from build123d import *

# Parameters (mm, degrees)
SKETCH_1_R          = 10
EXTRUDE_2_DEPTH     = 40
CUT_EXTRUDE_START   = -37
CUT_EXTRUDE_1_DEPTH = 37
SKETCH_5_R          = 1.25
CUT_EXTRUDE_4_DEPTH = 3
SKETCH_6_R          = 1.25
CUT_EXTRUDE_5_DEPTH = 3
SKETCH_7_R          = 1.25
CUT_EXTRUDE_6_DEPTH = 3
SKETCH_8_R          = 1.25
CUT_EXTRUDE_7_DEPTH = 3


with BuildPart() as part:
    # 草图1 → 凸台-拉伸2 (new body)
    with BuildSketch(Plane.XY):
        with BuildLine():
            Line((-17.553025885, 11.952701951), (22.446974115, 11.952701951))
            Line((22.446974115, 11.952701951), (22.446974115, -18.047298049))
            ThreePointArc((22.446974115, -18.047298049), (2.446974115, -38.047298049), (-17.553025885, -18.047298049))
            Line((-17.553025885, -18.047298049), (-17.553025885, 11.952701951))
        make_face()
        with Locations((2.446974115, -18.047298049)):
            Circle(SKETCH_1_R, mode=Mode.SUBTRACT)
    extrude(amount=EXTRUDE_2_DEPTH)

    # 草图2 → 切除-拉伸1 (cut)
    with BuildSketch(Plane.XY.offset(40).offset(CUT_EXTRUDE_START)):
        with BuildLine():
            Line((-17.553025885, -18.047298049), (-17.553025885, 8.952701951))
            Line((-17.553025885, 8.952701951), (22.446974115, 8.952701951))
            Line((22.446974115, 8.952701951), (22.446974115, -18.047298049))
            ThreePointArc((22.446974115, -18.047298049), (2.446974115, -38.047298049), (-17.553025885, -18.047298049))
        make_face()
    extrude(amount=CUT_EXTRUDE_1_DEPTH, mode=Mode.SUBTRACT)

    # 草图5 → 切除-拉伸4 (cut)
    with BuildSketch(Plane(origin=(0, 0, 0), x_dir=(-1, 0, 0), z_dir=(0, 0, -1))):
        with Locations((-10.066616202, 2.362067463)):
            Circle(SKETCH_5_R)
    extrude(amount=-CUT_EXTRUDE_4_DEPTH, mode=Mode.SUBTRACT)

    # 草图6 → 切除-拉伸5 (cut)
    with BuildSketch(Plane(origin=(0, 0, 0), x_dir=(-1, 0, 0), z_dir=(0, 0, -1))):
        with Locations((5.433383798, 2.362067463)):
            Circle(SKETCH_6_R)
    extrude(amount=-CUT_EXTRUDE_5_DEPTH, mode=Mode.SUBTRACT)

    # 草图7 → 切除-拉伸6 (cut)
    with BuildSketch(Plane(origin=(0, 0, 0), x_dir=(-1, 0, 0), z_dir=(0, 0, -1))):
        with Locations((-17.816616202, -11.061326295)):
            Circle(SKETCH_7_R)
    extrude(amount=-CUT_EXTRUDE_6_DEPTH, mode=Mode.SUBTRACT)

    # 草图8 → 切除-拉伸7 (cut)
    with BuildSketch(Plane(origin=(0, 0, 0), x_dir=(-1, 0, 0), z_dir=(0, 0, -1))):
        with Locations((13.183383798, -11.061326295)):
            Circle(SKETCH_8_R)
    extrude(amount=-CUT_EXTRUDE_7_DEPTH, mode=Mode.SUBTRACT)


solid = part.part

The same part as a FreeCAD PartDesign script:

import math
import FreeCAD as App
import Part
import Sketcher
from FreeCAD import Vector
Q = App.Units.Quantity

doc = App.newDocument("Part")
body = doc.addObject("PartDesign::Body", "Body")

# Sketch on XY plane
sketch1 = body.newObject("Sketcher::SketchObject", "Sketch")
sketch1.AttachmentSupport = (doc.getObject("XY_Plane"), [""])
sketch1.MapMode = "FlatFace"
sketch1.addGeometry(Part.LineSegment(Vector(22.446974, 11.952702, 0), Vector(-17.553026, 11.952702, 0)), False)
sketch1.addGeometry(Part.LineSegment(Vector(-17.553026, 11.952702, 0), Vector(-17.553026, -18.047298, 0)), False)
sketch1.addGeometry(Part.ArcOfCircle(Part.Circle(Vector(2.446974, -18.047298, 0), Vector(0, 0, 1), 20), math.radians(180), math.radians(360)), False)
sketch1.addGeometry(Part.LineSegment(Vector(22.446974, -18.047298, 0), Vector(22.446974, 11.952702, 0)), False)
sketch1.addGeometry(Part.Circle(Vector(2.446974, -18.047298, 0), Vector(0, 0, 1), 10), False)
sketch1.addConstraint(Sketcher.Constraint("Coincident", 0, 2, 1, 1))
sketch1.addConstraint(Sketcher.Constraint("Tangent", 1, 2, 2, 1))
sketch1.addConstraint(Sketcher.Constraint("Tangent", 2, 2, 3, 1))
sketch1.addConstraint(Sketcher.Constraint("Coincident", 3, 2, 0, 1))
sketch1.addConstraint(Sketcher.Constraint("Horizontal", 0))
sketch1.addConstraint(Sketcher.Constraint("Vertical", 1))
sketch1.addConstraint(Sketcher.Constraint("Vertical", 3))
sketch1.addConstraint(Sketcher.Constraint("Coincident", 4, 3, 2, 3))
sketch1.addConstraint(Sketcher.Constraint("Diameter", 4, Q("20 mm")))
sketch1.addConstraint(Sketcher.Constraint("Radius", 2, Q("20 mm")))
sketch1.addConstraint(Sketcher.Constraint("DistanceY", 1, 2, 1, 1, Q("30 mm")))
sketch1.addConstraint(Sketcher.Constraint("DistanceY", 2, 3, -1, 1, Q("18.047298 mm")))
sketch1.addConstraint(Sketcher.Constraint("DistanceX", -1, 1, 2, 3, Q("2.446974 mm")))
pad1 = body.newObject("PartDesign::Pad", "Pad")
pad1.Profile = sketch1
pad1.Length = 40

# Sketch on XY plane
sketch2 = body.newObject("Sketcher::SketchObject", "Sketch001")
sketch2.AttachmentSupport = (doc.getObject("XY_Plane"), [""])
sketch2.MapMode = "FlatFace"
sketch2.AttachmentOffset = App.Placement(Vector(0, 0, 3), App.Rotation())
sketch2.addGeometry(Part.LineSegment(Vector(-17.553026, 8.952702, 0), Vector(-17.553026, -18.047298, 0)), False)
sketch2.addGeometry(Part.ArcOfCircle(Part.Circle(Vector(2.446974, -18.047298, 0), Vector(0, 0, 1), 20), math.radians(180), math.radians(360)), False)
sketch2.addGeometry(Part.LineSegment(Vector(22.446974, -18.047298, 0), Vector(22.446974, 8.952702, 0)), False)
sketch2.addGeometry(Part.LineSegment(Vector(22.446974, 8.952702, 0), Vector(-17.553026, 8.952702, 0)), False)
sketch2.addConstraint(Sketcher.Constraint("Tangent", 0, 2, 1, 1))
sketch2.addConstraint(Sketcher.Constraint("Tangent", 1, 2, 2, 1))
sketch2.addConstraint(Sketcher.Constraint("Coincident", 2, 2, 3, 1))
sketch2.addConstraint(Sketcher.Constraint("Coincident", 3, 2, 0, 1))
sketch2.addConstraint(Sketcher.Constraint("Vertical", 0))
sketch2.addConstraint(Sketcher.Constraint("Vertical", 2))
sketch2.addConstraint(Sketcher.Constraint("Horizontal", 3))
sketch2.addConstraint(Sketcher.Constraint("Radius", 1, Q("20 mm")))
sketch2.addConstraint(Sketcher.Constraint("DistanceY", 0, 2, 0, 1, Q("27 mm")))
sketch2.addConstraint(Sketcher.Constraint("DistanceY", 1, 3, -1, 1, Q("18.047298 mm")))
sketch2.addConstraint(Sketcher.Constraint("DistanceX", -1, 1, 1, 3, Q("2.446974 mm")))
pocket1 = body.newObject("PartDesign::Pocket", "Pocket")
pocket1.Profile = sketch2
pocket1.Length = 37
pocket1.Reversed = True

# Sketch on XY plane
sketch3 = body.newObject("Sketcher::SketchObject", "Sketch002")
sketch3.AttachmentSupport = (doc.getObject("XY_Plane"), [""])
sketch3.MapMode = "FlatFace"
sketch3.addGeometry(Part.Circle(Vector(10.066616, 2.362067, 0), Vector(0, 0, 1), 1.25), False)
sketch3.addConstraint(Sketcher.Constraint("Diameter", 0, Q("2.5 mm")))
sketch3.addConstraint(Sketcher.Constraint("DistanceX", -1, 1, 0, 3, Q("10.066616 mm")))
sketch3.addConstraint(Sketcher.Constraint("DistanceY", -1, 1, 0, 3, Q("2.362067 mm")))
pocket2 = body.newObject("PartDesign::Pocket", "Pocket001")
pocket2.Profile = sketch3
pocket2.Length = 3
pocket2.Reversed = True

# Sketch on XY plane
sketch4 = body.newObject("Sketcher::SketchObject", "Sketch003")
sketch4.AttachmentSupport = (doc.getObject("XY_Plane"), [""])
sketch4.MapMode = "FlatFace"
sketch4.addGeometry(Part.Circle(Vector(-5.433384, 2.362067, 0), Vector(0, 0, 1), 1.25), False)
sketch4.addConstraint(Sketcher.Constraint("Diameter", 0, Q("2.5 mm")))
sketch4.addConstraint(Sketcher.Constraint("DistanceX", 0, 3, -1, 1, Q("5.433384 mm")))
sketch4.addConstraint(Sketcher.Constraint("DistanceY", -1, 1, 0, 3, Q("2.362067 mm")))
pocket3 = body.newObject("PartDesign::Pocket", "Pocket002")
pocket3.Profile = sketch4
pocket3.Length = 3
pocket3.Reversed = True

# Sketch on XY plane
sketch5 = body.newObject("Sketcher::SketchObject", "Sketch004")
sketch5.AttachmentSupport = (doc.getObject("XY_Plane"), [""])
sketch5.MapMode = "FlatFace"
sketch5.addGeometry(Part.Circle(Vector(17.816616, -11.061326, 0), Vector(0, 0, 1), 1.25), False)
sketch5.addConstraint(Sketcher.Constraint("Diameter", 0, Q("2.5 mm")))
sketch5.addConstraint(Sketcher.Constraint("DistanceX", -1, 1, 0, 3, Q("17.816616 mm")))
sketch5.addConstraint(Sketcher.Constraint("DistanceY", 0, 3, -1, 1, Q("11.061326 mm")))
pocket4 = body.newObject("PartDesign::Pocket", "Pocket003")
pocket4.Profile = sketch5
pocket4.Length = 3
pocket4.Reversed = True

# Sketch on XY plane
sketch6 = body.newObject("Sketcher::SketchObject", "Sketch005")
sketch6.AttachmentSupport = (doc.getObject("XY_Plane"), [""])
sketch6.MapMode = "FlatFace"
sketch6.addGeometry(Part.Circle(Vector(-13.183384, -11.061326, 0), Vector(0, 0, 1), 1.25), False)
sketch6.addConstraint(Sketcher.Constraint("Diameter", 0, Q("2.5 mm")))
sketch6.addConstraint(Sketcher.Constraint("DistanceX", 0, 3, -1, 1, Q("13.183384 mm")))
sketch6.addConstraint(Sketcher.Constraint("DistanceY", 0, 3, -1, 1, Q("11.061326 mm")))
pocket5 = body.newObject("PartDesign::Pocket", "Pocket004")
pocket5.Profile = sketch6
pocket5.Length = 3
pocket5.Reversed = True

doc.recompute()
